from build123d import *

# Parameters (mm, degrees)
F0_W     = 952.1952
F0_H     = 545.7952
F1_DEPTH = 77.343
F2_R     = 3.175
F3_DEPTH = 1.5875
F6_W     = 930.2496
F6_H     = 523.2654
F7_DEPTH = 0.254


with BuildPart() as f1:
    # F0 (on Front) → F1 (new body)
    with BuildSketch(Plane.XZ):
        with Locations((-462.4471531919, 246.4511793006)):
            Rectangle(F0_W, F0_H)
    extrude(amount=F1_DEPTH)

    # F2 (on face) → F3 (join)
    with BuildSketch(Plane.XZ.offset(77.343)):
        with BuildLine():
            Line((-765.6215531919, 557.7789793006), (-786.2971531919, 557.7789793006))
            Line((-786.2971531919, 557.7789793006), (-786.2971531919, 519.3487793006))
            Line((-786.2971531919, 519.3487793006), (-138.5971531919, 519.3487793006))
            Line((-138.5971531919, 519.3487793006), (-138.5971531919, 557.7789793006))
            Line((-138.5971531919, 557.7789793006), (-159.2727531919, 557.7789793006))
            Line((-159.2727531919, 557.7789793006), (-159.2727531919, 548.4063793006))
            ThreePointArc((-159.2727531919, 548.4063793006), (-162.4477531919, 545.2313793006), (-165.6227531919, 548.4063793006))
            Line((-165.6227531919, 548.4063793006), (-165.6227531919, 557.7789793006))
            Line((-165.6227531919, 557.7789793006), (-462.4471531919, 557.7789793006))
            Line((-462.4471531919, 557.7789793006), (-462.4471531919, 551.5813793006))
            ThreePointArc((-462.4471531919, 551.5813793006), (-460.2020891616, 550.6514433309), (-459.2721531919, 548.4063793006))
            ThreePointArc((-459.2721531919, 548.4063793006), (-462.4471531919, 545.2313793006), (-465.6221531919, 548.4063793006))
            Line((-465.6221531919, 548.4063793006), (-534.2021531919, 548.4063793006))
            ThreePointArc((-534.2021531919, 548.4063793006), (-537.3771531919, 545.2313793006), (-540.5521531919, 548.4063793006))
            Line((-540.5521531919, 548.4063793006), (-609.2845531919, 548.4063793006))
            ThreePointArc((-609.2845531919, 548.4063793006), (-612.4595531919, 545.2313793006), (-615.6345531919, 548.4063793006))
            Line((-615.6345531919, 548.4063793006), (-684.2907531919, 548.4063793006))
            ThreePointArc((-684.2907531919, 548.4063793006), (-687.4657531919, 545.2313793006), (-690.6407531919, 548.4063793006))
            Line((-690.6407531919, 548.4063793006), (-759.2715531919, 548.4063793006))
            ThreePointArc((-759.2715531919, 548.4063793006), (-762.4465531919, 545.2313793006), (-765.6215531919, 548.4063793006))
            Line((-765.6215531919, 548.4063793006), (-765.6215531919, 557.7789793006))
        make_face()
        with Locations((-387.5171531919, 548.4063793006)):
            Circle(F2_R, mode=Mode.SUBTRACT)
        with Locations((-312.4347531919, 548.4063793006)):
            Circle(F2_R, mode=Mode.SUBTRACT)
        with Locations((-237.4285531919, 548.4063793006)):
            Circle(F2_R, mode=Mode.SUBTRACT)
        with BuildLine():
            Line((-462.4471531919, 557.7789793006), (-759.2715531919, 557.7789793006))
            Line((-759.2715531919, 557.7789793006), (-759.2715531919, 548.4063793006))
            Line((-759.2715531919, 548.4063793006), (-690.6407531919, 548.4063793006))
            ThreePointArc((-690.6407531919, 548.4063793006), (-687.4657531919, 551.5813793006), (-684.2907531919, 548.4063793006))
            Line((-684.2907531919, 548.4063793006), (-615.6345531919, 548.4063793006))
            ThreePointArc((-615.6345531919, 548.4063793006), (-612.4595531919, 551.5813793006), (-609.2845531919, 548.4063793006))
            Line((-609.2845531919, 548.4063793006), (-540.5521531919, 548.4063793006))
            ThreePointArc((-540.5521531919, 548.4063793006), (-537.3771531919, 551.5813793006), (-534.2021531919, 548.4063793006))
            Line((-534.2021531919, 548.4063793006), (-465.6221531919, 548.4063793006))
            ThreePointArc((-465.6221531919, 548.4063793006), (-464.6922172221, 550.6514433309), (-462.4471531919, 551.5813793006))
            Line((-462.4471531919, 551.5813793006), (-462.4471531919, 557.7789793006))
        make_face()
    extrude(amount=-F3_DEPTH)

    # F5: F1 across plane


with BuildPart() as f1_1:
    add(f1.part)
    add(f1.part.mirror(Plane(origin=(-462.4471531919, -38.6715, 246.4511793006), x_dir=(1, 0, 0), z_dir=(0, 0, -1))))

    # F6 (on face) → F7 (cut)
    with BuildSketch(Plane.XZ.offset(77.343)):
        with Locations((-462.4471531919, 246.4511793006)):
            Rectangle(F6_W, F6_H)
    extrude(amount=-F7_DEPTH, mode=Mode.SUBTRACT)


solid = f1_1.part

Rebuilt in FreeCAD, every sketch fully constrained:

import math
import FreeCAD as App
import Part
import Sketcher

V = App.Vector
Q = App.Units.Quantity

doc = App.newDocument("Part")
body = doc.addObject("PartDesign::Body", "Body")

# Sketch on XZ plane
sketch1 = body.newObject("Sketcher::SketchObject", "Sketch")
sketch1.AttachmentSupport = (doc.getObject("XZ_Plane"), [""])
sketch1.MapMode = "FlatFace"
sketch1.addGeometry(Part.LineSegment(V(-938.544753, 519.348779, 0), V(-938.544753, -26.446421, 0)), False)
sketch1.addGeometry(Part.LineSegment(V(-938.544753, -26.446421, 0), V(13.650447, -26.446421, 0)), False)
sketch1.addGeometry(Part.LineSegment(V(13.650447, -26.446421, 0), V(13.650447, 519.348779, 0)), False)
sketch1.addGeometry(Part.LineSegment(V(13.650447, 519.348779, 0), V(-938.544753, 519.348779, 0)), False)
sketch1.addConstraint(Sketcher.Constraint("Coincident", 0, 2, 1, 1))
sketch1.addConstraint(Sketcher.Constraint("Coincident", 1, 2, 2, 1))
sketch1.addConstraint(Sketcher.Constraint("Coincident", 2, 2, 3, 1))
sketch1.addConstraint(Sketcher.Constraint("Coincident", 3, 2, 0, 1))
sketch1.addConstraint(Sketcher.Constraint("Vertical", 0))
sketch1.addConstraint(Sketcher.Constraint("Horizontal", 1))
sketch1.addConstraint(Sketcher.Constraint("Vertical", 2))
sketch1.addConstraint(Sketcher.Constraint("Horizontal", 3))
sketch1.addConstraint(Sketcher.Constraint("DistanceX", 1, 1, 1, 2, Q("37.488 in")))
sketch1.addConstraint(Sketcher.Constraint("DistanceY", 0, 2, 0, 1, Q("21.488 in")))
sketch1.addConstraint(Sketcher.Constraint("DistanceY", 0, 2, -1, 1, Q("26.446421 mm")))
sketch1.addConstraint(Sketcher.Constraint("DistanceX", 0, 2, -1, 1, Q("938.544753 mm")))
pad1 = body.newObject("PartDesign::Pad", "Pad")
pad1.Profile = sketch1
pad1.Length = Q("3.045 in")

# Sketch on XZ plane
sketch2 = body.newObject("Sketcher::SketchObject", "Sketch001")
sketch2.AttachmentSupport = (doc.getObject("XZ_Plane"), [""])
sketch2.MapMode = "FlatFace"
sketch2.AttachmentOffset = App.Placement(V(0, 0, 3.045 * 25.4), App.Rotation())
sketch2.addGeometry(Part.LineSegment(V(-765.621553, 557.778979, 0), V(-786.297153, 557.778979, 0)), False)
sketch2.addGeometry(Part.LineSegment(V(-786.297153, 557.778979, 0), V(-786.297153, 519.348779, 0)), False)
sketch2.addGeometry(Part.LineSegment(V(-786.297153, 519.348779, 0), V(-138.597153, 519.348779, 0)), False)
sketch2.addGeometry(Part.LineSegment(V(-138.597153, 519.348779, 0), V(-138.597153, 557.778979, 0)), False)
sketch2.addGeometry(Part.LineSegment(V(-138.597153, 557.778979, 0), V(-159.272753, 557.778979, 0)), False)
sketch2.addGeometry(Part.LineSegment(V(-159.272753, 557.778979, 0), V(-159.272753, 548.406379, 0)), False)
sketch2.addGeometry(Part.ArcOfCircle(Part.Circle(V(-162.447753, 548.406379, 0), V(0, 0, 1), 3.175), math.radians(180), math.radians(360)), False)
sketch2.addGeometry(Part.LineSegment(V(-165.622753, 548.406379, 0), V(-165.622753, 557.778979, 0)), False)
sketch2.addGeometry(Part.LineSegment(V(-165.622753, 557.778979, 0), V(-759.271553, 557.778979, 0)), False)
sketch2.addGeometry(Part.LineSegment(V(-759.271553, 557.778979, 0), V(-759.271553, 548.406379, 0)), False)
sketch2.addGeometry(Part.ArcOfCircle(Part.Circle(V(-762.446553, 548.406379, 0), V(0, 0, 1), 3.175), math.radians(180), math.radians(360)), False)
sketch2.addGeometry(Part.LineSegment(V(-765.621553, 548.406379, 0), V(-765.621553, 557.778979, 0)), False)
sketch2.addGeometry(Part.Circle(V(-687.465753, 548.406379, 0), V(0, 0, 1), 3.175), False)
sketch2.addGeometry(Part.Circle(V(-612.459553, 548.406379, 0), V(0, 0, 1), 3.175), False)
sketch2.addGeometry(Part.Circle(V(-537.377153, 548.406379, 0), V(0, 0, 1), 3.175), False)
sketch2.addGeometry(Part.ArcOfCircle(Part.Circle(V(-462.447153, 548.406379, 0), V(0, 0, 1), 3.175), math.radians(180), math.radians(360)), False)
sketch2.addGeometry(Part.ArcOfCircle(Part.Circle(V(-462.447153, 548.406379, 0), V(0, 0, 1), 3.175), math.radians(90), math.radians(180)), False)
sketch2.addGeometry(Part.ArcOfCircle(Part.Circle(V(-462.447153, 548.406379, 0), V(0, 0, 1), 3.175), math.radians(0), math.radians(90)), False)
sketch2.addGeometry(Part.Circle(V(-387.517153, 548.406379, 0), V(0, 0, 1), 3.175), False)
sketch2.addGeometry(Part.Circle(V(-312.434753, 548.406379, 0), V(0, 0, 1), 3.175), False)
sketch2.addGeometry(Part.Circle(V(-237.428553, 548.406379, 0), V(0, 0, 1), 3.175), False)
sketch2.addConstraint(Sketcher.Constraint("Coincident", 0, 2, 1, 1))
sketch2.addConstraint(Sketcher.Constraint("Coincident", 1, 2, 2, 1))
sketch2.addConstraint(Sketcher.Constraint("Coincident", 2, 2, 3, 1))
sketch2.addConstraint(Sketcher.Constraint("Coincident", 3, 2, 4, 1))
sketch2.addConstraint(Sketcher.Constraint("Coincident", 4, 2, 5, 1))
sketch2.addConstraint(Sketcher.Constraint("Tangent", 5, 2, 6, 2))
sketch2.addConstraint(Sketcher.Constraint("Tangent", 6, 1, 7, 1))
sketch2.addConstraint(Sketcher.Constraint("Coincident", 7, 2, 8, 1))
sketch2.addConstraint(Sketcher.Constraint("Coincident", 8, 2, 9, 1))
sketch2.addConstraint(Sketcher.Constraint("Tangent", 9, 2, 10, 2))
sketch2.addConstraint(Sketcher.Constraint("Tangent", 10, 1, 11, 1))
sketch2.addConstraint(Sketcher.Constraint("Coincident", 11, 2, 0, 1))
sketch2.addConstraint(Sketcher.Constraint("Tangent", 15, 1, 16, 2))
sketch2.addConstraint(Sketcher.Constraint("Tangent", 16, 1, 17, 2))
sketch2.addConstraint(Sketcher.Constraint("Tangent", 17, 1, 15, 2))
sketch2.addConstraint(Sketcher.Constraint("Horizontal", 0))
sketch2.addConstraint(Sketcher.Constraint("Vertical", 1))
sketch2.addConstraint(Sketcher.Constraint("Horizontal", 2))
sketch2.addConstraint(Sketcher.Constraint("Vertical", 3))
sketch2.addConstraint(Sketcher.Constraint("Horizontal", 4))
sketch2.addConstraint(Sketcher.Constraint("Vertical", 5))
sketch2.addConstraint(Sketcher.Constraint("Vertical", 7))
sketch2.addConstraint(Sketcher.Constraint("Horizontal", 8))
sketch2.addConstraint(Sketcher.Constraint("Vertical", 9))
sketch2.addConstraint(Sketcher.Constraint("Vertical", 11))
sketch2.addConstraint(Sketcher.Constraint("Equal", 6, 10))
sketch2.addConstraint(Sketcher.Constraint("Equal", 10, 12))
sketch2.addConstraint(Sketcher.Constraint("Equal", 12, 13))
sketch2.addConstraint(Sketcher.Constraint("Equal", 13, 14))
sketch2.addConstraint(Sketcher.Constraint("Equal", 14, 15))
sketch2.addConstraint(Sketcher.Constraint("Equal", 17, 18))
sketch2.addConstraint(Sketcher.Constraint("Equal", 18, 19))
sketch2.addConstraint(Sketcher.Constraint("Equal", 19, 20))
sketch2.addConstraint(Sketcher.Constraint("Horizontal", 6, 3, 10, 3))
sketch2.addConstraint(Sketcher.Constraint("Horizontal", 10, 3, 12, 3))
sketch2.addConstraint(Sketcher.Constraint("Horizontal", 12, 3, 13, 3))
sketch2.addConstraint(Sketcher.Constraint("Horizontal", 13, 3, 14, 3))
sketch2.addConstraint(Sketcher.Constraint("Horizontal", 14, 3, 15, 3))
sketch2.addConstraint(Sketcher.Constraint("Horizontal", 17, 3, 18, 3))
sketch2.addConstraint(Sketcher.Constraint("Horizontal", 18, 3, 19, 3))
sketch2.addConstraint(Sketcher.Constraint("Horizontal", 19, 3, 20, 3))
sketch2.addConstraint(Sketcher.Constraint("Horizontal", 0, 2, 3, 2))
sketch2.addConstraint(Sketcher.Constraint("Horizontal", 4, 2, 7, 2))
sketch2.addConstraint(Sketcher.Constraint("Horizontal", 10, 1, 15, 1))
sketch2.addConstraint(Sketcher.Constraint("Horizontal", 15, 1, 17, 1))
sketch2.addConstraint(Sketcher.Constraint("Vertical", 17, 3, 16, 1))
sketch2.addConstraint(Sketcher.Constraint("Equal", 0, 4))
sketch2.addConstraint(Sketcher.Constraint("Diameter", 12, Q("0.25 in")))
sketch2.addConstraint(Sketcher.Constraint("DistanceX", 2, 1, 2, 2, Q("25.5 in")))
sketch2.addConstraint(Sketcher.Constraint("DistanceX", 14, 3, 18, 3, Q("5.9 in")))
sketch2.addConstraint(Sketcher.Constraint("DistanceX", 0, 2, 14, 3, Q("9.8 in")))
sketch2.addConstraint(Sketcher.Constraint("DistanceX", 0, 2, 0, 1, Q("0.814 in")))
sketch2.addConstraint(Sketcher.Constraint("DistanceY", 1, 2, 1, 1, Q("1.513 in")))
sketch2.addConstraint(Sketcher.Constraint("DistanceY", 5, 2, 5, 1, Q("0.369 in")))
sketch2.addConstraint(Sketcher.Constraint("DistanceX", 12, 3, 6, 3, Q("20.67 in")))
sketch2.addConstraint(Sketcher.Constraint("DistanceX", 14, 3, 15, 3, Q("2.95 in")))
sketch2.addConstraint(Sketcher.Constraint("DistanceX", 19, 3, 4, 2, Q("6.03 in")))
sketch2.addConstraint(Sketcher.Constraint("DistanceX", 8, 2, 13, 3, Q("5.78 in")))
sketch2.addConstraint(Sketcher.Constraint("DistanceX", 20, 3, 6, 3, Q("2.952 in")))
sketch2.addConstraint(Sketcher.Constraint("DistanceY", -1, 1, 6, 3, Q("548.406379 mm")))
sketch2.addConstraint(Sketcher.Constraint("DistanceX", 6, 3, -1, 1, Q("162.447753 mm")))
pad2 = body.newObject("PartDesign::Pad", "Pad001")
pad2.Profile = sketch2
pad2.Length = Q("0.0625 in")
pad2.Reversed = True
body2 = doc.addObject("PartDesign::Body", "Body001")
doc.recompute()

body2.BaseFeature = body
doc.recompute()

mirroring = doc.addObject("Part::Mirroring", "Mirroring")
mirroring.Source = body
mirroring.Base = V(-462.447153, -38.6715, 246.451179)
mirroring.Normal = V(0, 0, -1)
body3 = doc.addObject("PartDesign::Body", "Body002")
body3.BaseFeature = mirroring
boolean = body2.newObject("PartDesign::Boolean", "Boolean")
boolean.Type = "Fuse"
boolean.addObjects([body3])
doc.recompute()

# Sketch on XZ plane
sketch3 = body2.newObject("Sketcher::SketchObject", "Sketch002")
sketch3.AttachmentSupport = (doc.getObject("XZ_Plane001"), [""])
sketch3.MapMode = "FlatFace"
sketch3.AttachmentOffset = App.Placement(V(0, 0, 3.045 * 25.4), App.Rotation())
sketch3.addGeometry(Part.LineSegment(V(-927.571953, 508.083879, 0), V(-927.571953, -15.181521, 0)), False)
sketch3.addGeometry(Part.LineSegment(V(-927.571953, -15.181521, 0), V(2.677647, -15.181521, 0)), False)
sketch3.addGeometry(Part.LineSegment(V(2.677647, -15.181521, 0), V(2.677647, 508.083879, 0)), False)
sketch3.addGeometry(Part.LineSegment(V(2.677647, 508.083879, 0), V(-927.571953, 508.083879, 0)), False)
sketch3.addConstraint(Sketcher.Constraint("Coincident", 0, 2, 1, 1))
sketch3.addConstraint(Sketcher.Constraint("Coincident", 1, 2, 2, 1))
sketch3.addConstraint(Sketcher.Constraint("Coincident", 2, 2, 3, 1))
sketch3.addConstraint(Sketcher.Constraint("Coincident", 3, 2, 0, 1))
sketch3.addConstraint(Sketcher.Constraint("Vertical", 0))
sketch3.addConstraint(Sketcher.Constraint("Horizontal", 1))
sketch3.addConstraint(Sketcher.Constraint("Vertical", 2))
sketch3.addConstraint(Sketcher.Constraint("Horizontal", 3))
sketch3.addConstraint(Sketcher.Constraint("DistanceX", 1, 1, 1, 2, Q("36.624 in")))
sketch3.addConstraint(Sketcher.Constraint("DistanceY", 0, 2, 0, 1, Q("20.601 in")))
sketch3.addConstraint(Sketcher.Constraint("DistanceY", 0, 2, -1, 1, Q("15.181521 mm")))
sketch3.addConstraint(Sketcher.Constraint("DistanceX", 0, 2, -1, 1, Q("927.571953 mm")))
pocket1 = body2.newObject("PartDesign::Pocket", "Pocket")
pocket1.Profile = sketch3
pocket1.Length = Q("0.01 in")
mirroring.Visibility = False

doc.recompute()
